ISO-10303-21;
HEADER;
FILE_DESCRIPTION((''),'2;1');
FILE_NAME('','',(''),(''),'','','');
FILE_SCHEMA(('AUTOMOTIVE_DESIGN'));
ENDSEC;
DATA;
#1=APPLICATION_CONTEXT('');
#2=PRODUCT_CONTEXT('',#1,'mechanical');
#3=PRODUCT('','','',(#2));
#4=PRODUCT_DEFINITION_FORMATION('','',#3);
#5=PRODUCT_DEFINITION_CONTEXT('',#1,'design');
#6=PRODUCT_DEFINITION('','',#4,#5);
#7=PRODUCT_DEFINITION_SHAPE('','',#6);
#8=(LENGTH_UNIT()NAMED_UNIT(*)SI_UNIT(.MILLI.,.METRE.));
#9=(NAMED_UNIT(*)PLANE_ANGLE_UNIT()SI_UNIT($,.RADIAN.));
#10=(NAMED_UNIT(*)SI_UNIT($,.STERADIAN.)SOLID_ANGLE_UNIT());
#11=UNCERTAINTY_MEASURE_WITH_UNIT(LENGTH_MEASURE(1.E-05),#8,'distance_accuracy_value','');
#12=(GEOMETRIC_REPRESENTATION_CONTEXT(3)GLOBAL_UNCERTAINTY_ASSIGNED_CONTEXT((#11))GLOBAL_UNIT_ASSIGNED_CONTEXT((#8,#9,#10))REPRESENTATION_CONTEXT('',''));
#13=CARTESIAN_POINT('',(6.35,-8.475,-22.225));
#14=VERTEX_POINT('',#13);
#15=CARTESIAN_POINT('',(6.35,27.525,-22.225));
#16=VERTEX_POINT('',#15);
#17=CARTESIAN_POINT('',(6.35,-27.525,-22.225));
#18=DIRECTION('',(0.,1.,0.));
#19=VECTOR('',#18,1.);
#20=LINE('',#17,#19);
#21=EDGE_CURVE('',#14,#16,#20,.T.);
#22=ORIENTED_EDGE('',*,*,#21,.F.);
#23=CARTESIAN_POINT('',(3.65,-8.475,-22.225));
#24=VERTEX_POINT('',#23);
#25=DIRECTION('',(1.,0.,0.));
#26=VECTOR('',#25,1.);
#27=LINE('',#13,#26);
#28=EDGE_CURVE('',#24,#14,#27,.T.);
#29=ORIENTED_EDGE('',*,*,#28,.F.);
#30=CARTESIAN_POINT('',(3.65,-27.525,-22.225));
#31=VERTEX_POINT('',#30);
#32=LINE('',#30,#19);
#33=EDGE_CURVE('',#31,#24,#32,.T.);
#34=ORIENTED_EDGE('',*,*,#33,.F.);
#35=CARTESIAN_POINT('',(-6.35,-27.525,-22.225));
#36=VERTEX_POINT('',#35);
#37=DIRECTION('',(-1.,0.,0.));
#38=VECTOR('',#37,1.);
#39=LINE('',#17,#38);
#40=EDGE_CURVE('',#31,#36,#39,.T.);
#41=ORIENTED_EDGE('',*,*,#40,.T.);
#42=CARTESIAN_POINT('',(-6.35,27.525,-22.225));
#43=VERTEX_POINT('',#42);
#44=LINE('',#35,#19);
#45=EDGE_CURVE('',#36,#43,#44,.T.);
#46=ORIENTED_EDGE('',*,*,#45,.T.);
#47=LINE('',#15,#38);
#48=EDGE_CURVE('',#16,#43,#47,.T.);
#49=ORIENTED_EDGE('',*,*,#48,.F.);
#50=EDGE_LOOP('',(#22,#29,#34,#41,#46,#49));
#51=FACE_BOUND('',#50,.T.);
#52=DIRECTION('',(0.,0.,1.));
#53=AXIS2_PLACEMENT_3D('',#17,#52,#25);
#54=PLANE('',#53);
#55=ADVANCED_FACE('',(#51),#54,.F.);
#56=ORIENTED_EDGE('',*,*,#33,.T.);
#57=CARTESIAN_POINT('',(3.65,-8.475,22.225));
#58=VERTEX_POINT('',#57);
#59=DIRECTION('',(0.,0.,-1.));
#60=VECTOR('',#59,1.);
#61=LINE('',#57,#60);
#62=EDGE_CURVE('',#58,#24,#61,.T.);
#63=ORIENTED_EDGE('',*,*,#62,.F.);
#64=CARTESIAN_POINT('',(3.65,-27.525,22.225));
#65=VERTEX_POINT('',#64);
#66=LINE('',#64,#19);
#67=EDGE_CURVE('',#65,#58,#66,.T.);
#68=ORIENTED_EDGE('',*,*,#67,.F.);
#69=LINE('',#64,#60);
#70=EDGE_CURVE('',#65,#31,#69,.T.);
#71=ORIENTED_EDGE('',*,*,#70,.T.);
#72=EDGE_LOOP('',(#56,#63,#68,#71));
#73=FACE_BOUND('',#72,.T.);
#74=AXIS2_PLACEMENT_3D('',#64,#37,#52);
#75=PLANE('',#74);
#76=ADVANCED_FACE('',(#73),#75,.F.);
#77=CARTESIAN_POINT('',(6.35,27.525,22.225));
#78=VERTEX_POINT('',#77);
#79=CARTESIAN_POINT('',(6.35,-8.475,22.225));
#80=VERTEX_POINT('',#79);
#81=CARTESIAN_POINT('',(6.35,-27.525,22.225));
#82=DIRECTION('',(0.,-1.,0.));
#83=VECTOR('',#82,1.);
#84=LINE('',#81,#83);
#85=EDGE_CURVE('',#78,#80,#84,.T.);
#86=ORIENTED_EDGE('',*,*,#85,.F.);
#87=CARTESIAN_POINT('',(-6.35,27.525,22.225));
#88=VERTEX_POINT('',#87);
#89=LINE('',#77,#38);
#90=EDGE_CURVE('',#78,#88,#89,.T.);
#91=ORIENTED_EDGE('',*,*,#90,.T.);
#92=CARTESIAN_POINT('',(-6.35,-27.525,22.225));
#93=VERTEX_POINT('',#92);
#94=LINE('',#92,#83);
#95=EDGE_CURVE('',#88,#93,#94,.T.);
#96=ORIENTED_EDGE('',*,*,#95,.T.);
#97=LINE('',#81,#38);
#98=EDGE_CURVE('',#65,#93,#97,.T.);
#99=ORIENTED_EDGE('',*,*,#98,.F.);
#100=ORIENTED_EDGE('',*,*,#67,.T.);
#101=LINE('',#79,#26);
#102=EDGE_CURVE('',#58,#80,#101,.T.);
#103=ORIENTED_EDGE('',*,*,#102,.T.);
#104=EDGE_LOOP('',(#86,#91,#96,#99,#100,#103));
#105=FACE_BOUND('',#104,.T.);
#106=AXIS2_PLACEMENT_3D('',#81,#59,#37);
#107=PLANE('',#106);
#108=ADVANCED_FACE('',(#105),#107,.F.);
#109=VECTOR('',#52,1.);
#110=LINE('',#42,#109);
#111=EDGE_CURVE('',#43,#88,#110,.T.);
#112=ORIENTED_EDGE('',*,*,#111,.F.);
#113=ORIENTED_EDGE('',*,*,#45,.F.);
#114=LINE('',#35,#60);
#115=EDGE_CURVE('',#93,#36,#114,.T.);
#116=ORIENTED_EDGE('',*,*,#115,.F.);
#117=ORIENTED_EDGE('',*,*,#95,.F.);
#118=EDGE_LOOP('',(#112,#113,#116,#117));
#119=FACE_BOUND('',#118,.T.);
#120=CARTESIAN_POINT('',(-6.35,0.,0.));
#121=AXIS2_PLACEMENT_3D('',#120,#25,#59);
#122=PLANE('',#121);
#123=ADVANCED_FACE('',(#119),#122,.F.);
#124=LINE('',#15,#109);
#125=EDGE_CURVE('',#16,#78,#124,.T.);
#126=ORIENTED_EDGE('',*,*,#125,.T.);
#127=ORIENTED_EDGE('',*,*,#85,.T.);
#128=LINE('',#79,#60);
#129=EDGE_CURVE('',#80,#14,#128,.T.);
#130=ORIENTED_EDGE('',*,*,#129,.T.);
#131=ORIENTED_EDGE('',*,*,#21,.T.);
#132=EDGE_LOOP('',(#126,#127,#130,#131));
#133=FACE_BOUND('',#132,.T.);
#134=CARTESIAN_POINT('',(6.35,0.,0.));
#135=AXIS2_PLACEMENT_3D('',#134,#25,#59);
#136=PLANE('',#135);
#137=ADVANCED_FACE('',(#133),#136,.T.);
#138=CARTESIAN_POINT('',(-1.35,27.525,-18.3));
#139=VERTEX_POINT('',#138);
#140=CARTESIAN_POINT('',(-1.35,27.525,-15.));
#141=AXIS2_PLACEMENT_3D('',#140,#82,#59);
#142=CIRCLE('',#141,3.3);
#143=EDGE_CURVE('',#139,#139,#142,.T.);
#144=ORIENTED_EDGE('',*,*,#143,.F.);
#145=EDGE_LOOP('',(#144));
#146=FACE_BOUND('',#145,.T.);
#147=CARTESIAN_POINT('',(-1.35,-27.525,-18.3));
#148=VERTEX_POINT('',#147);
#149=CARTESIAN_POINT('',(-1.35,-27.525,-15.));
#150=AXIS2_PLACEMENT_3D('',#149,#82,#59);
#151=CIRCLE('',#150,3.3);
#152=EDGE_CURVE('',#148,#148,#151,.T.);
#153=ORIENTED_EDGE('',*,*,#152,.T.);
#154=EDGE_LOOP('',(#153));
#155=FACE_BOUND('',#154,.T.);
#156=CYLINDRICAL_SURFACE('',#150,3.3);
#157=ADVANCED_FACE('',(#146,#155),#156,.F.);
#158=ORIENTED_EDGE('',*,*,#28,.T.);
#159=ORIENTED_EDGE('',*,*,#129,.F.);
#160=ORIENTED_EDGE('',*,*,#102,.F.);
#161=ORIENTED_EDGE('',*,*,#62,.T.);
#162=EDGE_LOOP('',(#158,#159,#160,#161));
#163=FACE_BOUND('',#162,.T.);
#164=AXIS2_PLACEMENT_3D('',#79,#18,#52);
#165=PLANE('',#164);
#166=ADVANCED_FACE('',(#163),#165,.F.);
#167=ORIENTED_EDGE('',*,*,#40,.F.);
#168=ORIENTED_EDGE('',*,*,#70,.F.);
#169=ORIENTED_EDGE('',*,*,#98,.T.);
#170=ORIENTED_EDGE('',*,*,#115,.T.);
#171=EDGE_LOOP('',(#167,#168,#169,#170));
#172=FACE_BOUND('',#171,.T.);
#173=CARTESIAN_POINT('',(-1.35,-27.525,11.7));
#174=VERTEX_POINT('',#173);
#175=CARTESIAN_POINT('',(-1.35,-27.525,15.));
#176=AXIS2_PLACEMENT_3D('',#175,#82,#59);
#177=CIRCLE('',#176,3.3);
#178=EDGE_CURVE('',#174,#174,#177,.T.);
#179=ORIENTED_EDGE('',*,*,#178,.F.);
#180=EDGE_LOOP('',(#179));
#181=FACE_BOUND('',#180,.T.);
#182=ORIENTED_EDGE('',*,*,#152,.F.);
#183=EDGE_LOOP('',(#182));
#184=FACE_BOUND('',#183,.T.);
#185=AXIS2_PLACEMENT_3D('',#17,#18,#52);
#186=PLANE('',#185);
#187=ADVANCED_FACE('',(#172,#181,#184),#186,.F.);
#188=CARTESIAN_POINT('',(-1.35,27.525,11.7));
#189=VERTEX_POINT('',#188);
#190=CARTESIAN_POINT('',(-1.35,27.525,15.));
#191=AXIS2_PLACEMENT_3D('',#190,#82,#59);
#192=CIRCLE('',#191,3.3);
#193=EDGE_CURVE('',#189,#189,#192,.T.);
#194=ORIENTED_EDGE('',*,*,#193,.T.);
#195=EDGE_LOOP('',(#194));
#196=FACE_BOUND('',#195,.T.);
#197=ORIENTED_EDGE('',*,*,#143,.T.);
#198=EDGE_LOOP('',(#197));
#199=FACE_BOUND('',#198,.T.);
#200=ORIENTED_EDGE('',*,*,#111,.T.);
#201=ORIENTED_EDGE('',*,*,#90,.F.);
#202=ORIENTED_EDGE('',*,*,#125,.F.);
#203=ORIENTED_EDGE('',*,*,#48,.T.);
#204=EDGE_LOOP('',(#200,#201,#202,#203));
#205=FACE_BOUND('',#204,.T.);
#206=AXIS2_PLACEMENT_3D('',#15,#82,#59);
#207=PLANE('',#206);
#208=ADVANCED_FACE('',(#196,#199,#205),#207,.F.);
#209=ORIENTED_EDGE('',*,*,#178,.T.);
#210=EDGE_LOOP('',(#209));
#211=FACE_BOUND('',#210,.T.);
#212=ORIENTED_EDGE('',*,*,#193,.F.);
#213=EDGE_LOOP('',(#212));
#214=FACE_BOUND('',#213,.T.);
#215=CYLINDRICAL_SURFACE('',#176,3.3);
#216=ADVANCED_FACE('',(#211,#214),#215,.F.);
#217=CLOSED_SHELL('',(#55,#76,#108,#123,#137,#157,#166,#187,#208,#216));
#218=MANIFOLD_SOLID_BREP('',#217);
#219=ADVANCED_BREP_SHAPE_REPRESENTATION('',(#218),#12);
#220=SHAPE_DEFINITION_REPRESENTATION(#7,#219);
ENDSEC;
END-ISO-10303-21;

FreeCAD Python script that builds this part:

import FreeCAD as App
import Part
import Sketcher

V = App.Vector
Q = App.Units.Quantity


def add_polygon(sketch, points):
    """Adds a closed chain of lines whose ends are joined by coincident constraints."""
    first, n = sketch.GeometryCount, len(points)
    for a, b in zip(points, points[1:] + points[:1]):
        sketch.addGeometry(Part.LineSegment(App.Vector(*a, 0), App.Vector(*b, 0)), False)
    for i in range(n):
        sketch.addConstraint(Sketcher.Constraint("Coincident", first + i, 2, first + (i + 1) % n, 1))

doc = App.newDocument("Part")
body = doc.addObject("PartDesign::Body", "Body")

sketch1 = body.newObject("Sketcher::SketchObject", "Sketch")
sketch1.AttachmentSupport = (doc.getObject("YZ_Plane"), [""])
sketch1.MapMode = "FlatFace"
add_polygon(sketch1, [(28, 22), (-28, 22), (-28, -22), (28, -22)])
sketch1.addConstraint([
    Sketcher.Constraint("Horizontal", 0),
    Sketcher.Constraint("Vertical", 1),
    Sketcher.Constraint("Horizontal", 2),
    Sketcher.Constraint("Vertical", 3),
    Sketcher.Constraint("Symmetric", 0, 2, 2, 2, -1, 1),
    Sketcher.Constraint("DistanceY", 1, 2, 1, 1, Q("1.75 in")),
    Sketcher.Constraint("DistanceX", 0, 2, 0, 1, Q("55.05 mm")),
])
pad1 = body.newObject("PartDesign::Pad", "Pad")
pad1.Profile = sketch1
pad1.Length = Q("0.5 in")
pad1.Midplane = True

sketch2 = body.newObject("Sketcher::SketchObject", "Sketch001")
sketch2.AttachmentSupport = (doc.getObject("XY_Plane"), [""])
sketch2.MapMode = "FlatFace"
sketch2.AttachmentOffset = App.Placement(V(0, 0, -0.875 * 25.4), App.Rotation())
add_polygon(sketch2, [(6.3, -8.5), (6.3, -27.5), (3.6, -27.5), (3.6, -8.5)])
sketch2.addConstraint([
    Sketcher.Constraint("Vertical", 0),
    Sketcher.Constraint("Horizontal", 1),
    Sketcher.Constraint("Vertical", 2),
    Sketcher.Constraint("Horizontal", 3),
    Sketcher.Constraint("DistanceY", 0, 2, 0, 1, Q("0.75 in")),
    Sketcher.Constraint("DistanceX", -1, 1, 0, 2, Q("0.25 in")),
    Sketcher.Constraint("DistanceX", 1, 2, 1, 1, Q("2.7 mm")),
    Sketcher.Constraint("DistanceY", 0, 2, -1, 1, Q("27.525 mm")),
])
pocket1 = body.newObject("PartDesign::Pocket", "Pocket")
pocket1.Profile = sketch2
pocket1.Type = "ThroughAll"
pocket1.Reversed = True

sketch3 = body.newObject("Sketcher::SketchObject", "Sketch002")
sketch3.AttachmentSupport = (doc.getObject("XZ_Plane"), [""])
sketch3.MapMode = "FlatFace"
sketch3.AttachmentOffset = App.Placement(V(0, 0, 27.525), App.Rotation())
sketch3.addGeometry([
    Part.Circle(V(-1.4, -15, 0), V(0, 0, 1), 3.3),
    Part.Circle(V(-1.4, 15, 0), V(0, 0, 1), 3.3),
], False)
sketch3.addConstraint([
    Sketcher.Constraint("Equal", 0, 1),
    Sketcher.Constraint("Symmetric", 0, 3, 1, 3, -1),
    Sketcher.Constraint("Diameter", 0, Q("6.6 mm")),
    Sketcher.Constraint("DistanceX", 0, 3, -1, 1, Q("1.35 mm")),
    Sketcher.Constraint("DistanceY", 0, 3, -1, 1, Q("15 mm")),
])
doc.recompute()
hole = body.newObject("PartDesign::Hole", "Hole")
hole.Profile = sketch3
hole.ThreadType = "None"
hole.Diameter = 6.6
hole.DepthType = "ThroughAll"

doc.recompute()
